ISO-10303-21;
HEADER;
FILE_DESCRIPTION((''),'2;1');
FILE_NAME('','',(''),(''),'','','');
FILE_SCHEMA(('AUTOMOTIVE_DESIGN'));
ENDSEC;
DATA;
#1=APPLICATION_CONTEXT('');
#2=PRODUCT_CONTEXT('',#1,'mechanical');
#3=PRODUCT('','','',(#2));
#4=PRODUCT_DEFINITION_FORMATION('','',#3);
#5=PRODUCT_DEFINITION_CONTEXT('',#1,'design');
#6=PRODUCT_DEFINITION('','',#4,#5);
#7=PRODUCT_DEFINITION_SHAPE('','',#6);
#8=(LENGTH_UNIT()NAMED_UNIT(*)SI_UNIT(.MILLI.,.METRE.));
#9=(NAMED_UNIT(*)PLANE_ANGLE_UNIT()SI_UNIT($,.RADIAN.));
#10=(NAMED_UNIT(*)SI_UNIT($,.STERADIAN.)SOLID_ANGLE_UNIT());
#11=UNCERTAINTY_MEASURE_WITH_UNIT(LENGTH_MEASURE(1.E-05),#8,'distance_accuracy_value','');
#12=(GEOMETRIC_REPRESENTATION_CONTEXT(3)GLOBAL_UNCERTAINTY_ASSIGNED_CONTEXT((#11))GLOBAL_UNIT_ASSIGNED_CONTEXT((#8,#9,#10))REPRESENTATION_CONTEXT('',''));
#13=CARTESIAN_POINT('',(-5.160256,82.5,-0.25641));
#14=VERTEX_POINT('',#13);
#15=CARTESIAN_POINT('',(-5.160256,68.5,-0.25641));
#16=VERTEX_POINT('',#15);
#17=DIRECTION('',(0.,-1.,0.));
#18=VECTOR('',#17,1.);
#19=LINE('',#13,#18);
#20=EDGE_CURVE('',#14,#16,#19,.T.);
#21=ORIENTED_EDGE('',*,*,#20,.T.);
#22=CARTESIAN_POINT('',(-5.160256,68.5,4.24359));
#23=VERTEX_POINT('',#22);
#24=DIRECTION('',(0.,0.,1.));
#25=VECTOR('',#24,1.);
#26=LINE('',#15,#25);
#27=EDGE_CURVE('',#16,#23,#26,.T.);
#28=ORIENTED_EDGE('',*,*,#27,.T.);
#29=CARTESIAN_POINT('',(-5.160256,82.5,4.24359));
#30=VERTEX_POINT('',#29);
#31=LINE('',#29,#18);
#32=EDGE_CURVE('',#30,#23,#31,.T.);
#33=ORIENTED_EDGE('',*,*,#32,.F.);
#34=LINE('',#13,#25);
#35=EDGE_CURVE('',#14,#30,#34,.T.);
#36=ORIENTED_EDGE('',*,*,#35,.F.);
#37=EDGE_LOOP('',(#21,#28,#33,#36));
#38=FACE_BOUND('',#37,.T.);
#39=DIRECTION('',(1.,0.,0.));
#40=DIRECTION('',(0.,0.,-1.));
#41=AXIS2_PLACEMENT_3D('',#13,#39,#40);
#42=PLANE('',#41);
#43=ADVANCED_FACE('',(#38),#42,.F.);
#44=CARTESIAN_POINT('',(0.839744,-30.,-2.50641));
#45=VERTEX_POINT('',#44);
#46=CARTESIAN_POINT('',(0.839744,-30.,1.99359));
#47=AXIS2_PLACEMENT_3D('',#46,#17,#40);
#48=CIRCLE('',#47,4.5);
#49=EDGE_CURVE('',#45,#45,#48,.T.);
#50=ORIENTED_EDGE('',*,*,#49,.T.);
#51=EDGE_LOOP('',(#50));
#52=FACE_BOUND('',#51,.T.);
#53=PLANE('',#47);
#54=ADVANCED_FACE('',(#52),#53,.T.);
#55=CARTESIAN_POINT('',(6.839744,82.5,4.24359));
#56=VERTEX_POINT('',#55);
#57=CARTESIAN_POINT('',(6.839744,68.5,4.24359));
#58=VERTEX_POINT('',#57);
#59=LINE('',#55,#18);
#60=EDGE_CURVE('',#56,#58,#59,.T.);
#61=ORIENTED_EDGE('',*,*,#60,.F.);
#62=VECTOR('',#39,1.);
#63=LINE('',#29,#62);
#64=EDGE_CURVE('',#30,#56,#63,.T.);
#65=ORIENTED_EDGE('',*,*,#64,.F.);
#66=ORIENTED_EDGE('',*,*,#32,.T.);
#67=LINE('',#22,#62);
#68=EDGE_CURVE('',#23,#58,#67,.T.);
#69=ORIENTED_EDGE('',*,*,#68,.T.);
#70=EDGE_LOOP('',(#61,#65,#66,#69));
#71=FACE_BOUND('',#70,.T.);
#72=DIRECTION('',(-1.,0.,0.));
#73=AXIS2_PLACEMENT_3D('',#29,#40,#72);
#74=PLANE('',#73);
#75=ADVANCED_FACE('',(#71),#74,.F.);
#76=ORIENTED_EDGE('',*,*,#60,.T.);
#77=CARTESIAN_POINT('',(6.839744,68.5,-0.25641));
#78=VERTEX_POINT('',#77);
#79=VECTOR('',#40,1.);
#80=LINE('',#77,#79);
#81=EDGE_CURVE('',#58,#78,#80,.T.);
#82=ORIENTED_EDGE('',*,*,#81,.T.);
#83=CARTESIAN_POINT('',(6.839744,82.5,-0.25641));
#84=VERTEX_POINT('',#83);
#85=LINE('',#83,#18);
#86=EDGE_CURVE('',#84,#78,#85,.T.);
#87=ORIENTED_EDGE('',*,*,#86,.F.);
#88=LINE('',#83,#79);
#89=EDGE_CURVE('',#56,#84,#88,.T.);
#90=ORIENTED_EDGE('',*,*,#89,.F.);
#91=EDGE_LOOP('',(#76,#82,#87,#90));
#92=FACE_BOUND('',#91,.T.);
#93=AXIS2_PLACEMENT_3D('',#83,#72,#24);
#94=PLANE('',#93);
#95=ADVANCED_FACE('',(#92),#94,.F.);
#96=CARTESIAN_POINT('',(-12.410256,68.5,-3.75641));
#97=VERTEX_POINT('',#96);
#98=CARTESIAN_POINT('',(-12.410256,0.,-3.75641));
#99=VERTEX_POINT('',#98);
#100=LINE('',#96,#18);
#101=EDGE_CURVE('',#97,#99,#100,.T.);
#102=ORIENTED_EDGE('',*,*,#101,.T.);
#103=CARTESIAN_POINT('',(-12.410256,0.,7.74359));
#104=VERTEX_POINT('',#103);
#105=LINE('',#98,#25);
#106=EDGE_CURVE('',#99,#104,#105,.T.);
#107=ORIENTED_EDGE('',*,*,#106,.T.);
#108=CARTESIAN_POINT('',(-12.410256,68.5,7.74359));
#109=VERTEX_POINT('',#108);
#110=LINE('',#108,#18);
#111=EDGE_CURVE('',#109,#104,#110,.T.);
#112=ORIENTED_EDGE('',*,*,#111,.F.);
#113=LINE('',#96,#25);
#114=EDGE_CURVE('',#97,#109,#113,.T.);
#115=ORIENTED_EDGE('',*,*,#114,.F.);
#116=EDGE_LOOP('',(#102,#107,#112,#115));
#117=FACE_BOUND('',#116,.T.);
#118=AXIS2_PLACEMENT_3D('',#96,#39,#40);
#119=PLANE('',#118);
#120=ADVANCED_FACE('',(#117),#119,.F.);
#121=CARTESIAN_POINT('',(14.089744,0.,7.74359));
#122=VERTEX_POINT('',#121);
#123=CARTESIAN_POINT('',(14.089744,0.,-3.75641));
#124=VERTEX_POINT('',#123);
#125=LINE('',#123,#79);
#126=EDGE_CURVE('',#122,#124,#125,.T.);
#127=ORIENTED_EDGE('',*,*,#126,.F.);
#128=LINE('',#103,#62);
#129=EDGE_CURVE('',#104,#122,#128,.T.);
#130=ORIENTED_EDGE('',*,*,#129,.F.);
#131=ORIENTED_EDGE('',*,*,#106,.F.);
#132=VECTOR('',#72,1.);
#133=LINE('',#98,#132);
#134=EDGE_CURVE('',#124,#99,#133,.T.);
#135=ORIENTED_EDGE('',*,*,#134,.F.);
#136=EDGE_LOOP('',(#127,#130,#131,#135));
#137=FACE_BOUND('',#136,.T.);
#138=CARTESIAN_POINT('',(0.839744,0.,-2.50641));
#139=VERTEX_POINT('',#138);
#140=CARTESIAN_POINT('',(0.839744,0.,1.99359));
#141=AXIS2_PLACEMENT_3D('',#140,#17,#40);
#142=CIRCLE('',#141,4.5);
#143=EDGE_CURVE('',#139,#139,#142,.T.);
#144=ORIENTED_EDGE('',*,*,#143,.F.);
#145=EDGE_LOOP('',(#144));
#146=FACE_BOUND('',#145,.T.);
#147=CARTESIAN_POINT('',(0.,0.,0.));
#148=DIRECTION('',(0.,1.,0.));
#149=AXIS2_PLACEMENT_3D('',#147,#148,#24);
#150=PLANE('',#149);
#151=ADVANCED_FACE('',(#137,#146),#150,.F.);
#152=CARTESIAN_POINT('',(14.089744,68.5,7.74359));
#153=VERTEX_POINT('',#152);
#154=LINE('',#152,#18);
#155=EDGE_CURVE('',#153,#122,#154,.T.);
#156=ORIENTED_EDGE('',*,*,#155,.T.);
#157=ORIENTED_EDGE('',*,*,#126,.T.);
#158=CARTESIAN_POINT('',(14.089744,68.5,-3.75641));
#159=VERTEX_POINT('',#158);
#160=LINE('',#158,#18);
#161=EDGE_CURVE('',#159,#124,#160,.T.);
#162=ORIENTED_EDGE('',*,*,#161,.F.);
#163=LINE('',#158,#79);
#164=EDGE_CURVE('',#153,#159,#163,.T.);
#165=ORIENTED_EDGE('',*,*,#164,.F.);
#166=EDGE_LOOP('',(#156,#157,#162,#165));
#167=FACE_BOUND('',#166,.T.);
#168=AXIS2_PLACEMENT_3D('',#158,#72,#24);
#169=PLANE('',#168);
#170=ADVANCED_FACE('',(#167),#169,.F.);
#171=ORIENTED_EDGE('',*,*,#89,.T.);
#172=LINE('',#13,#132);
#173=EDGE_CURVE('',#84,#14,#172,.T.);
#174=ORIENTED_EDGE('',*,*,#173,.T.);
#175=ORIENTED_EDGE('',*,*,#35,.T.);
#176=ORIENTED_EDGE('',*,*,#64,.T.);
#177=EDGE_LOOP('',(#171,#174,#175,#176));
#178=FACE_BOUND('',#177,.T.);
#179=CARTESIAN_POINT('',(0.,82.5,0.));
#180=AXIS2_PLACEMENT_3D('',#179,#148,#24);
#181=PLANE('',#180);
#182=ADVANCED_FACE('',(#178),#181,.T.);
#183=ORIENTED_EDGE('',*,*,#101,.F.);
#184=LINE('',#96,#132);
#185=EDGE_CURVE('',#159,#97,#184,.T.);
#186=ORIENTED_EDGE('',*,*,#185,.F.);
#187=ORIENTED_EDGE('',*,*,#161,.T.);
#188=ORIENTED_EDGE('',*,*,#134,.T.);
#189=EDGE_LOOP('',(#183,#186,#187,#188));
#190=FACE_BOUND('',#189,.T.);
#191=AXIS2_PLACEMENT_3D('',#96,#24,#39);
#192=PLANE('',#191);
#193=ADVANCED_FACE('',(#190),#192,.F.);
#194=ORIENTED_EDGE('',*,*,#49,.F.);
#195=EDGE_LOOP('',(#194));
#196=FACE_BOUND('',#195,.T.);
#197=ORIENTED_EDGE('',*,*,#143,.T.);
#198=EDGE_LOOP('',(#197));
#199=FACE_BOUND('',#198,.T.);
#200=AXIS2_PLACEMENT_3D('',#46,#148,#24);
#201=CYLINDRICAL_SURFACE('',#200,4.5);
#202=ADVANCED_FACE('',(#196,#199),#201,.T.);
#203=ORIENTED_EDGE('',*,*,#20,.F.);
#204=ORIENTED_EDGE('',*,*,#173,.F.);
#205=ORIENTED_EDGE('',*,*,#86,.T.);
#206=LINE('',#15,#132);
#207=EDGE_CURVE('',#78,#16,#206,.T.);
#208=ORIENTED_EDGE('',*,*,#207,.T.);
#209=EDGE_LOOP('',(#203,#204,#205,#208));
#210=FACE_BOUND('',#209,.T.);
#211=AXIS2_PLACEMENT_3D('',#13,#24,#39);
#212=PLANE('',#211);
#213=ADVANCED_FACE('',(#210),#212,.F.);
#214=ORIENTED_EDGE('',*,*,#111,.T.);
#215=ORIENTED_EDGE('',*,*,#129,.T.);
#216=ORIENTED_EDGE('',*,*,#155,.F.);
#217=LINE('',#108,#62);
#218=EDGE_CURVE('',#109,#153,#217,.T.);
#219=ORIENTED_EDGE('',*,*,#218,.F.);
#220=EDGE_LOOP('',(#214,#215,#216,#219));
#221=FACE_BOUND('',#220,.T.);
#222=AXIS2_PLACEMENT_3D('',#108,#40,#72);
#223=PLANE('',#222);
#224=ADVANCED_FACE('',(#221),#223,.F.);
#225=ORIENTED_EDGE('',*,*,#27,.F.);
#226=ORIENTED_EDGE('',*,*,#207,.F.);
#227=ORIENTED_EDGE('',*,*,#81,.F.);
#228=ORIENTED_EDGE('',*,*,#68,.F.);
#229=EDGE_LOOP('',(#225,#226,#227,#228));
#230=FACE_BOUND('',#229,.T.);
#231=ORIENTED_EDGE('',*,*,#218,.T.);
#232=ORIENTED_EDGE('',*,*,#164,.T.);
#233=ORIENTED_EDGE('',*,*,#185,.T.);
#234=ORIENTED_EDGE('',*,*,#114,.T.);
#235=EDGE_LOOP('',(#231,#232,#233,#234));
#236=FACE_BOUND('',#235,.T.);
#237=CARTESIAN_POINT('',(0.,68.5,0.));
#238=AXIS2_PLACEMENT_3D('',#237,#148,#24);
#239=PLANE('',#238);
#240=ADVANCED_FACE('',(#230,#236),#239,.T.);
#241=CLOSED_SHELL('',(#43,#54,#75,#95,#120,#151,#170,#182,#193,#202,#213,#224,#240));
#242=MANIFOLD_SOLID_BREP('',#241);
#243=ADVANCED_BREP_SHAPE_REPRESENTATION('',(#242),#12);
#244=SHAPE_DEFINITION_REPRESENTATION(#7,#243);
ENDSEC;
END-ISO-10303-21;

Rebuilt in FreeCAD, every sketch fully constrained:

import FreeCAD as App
import Part
import Sketcher
Q = App.Units.Quantity


def add_polygon(sketch, points):
    """Adds a closed chain of lines whose ends are joined by coincident constraints."""
    first, n = sketch.GeometryCount, len(points)
    for a, b in zip(points, points[1:] + points[:1]):
        sketch.addGeometry(Part.LineSegment(App.Vector(*a, 0), App.Vector(*b, 0)), False)
    for i in range(n):
        sketch.addConstraint(Sketcher.Constraint("Coincident", first + i, 2, first + (i + 1) % n, 1))

doc = App.newDocument("Part")
body = doc.addObject("PartDesign::Body", "Body")

sketch1 = body.newObject("Sketcher::SketchObject", "Sketch")
sketch1.AttachmentSupport = (doc.getObject("XZ_Plane"), [""])
sketch1.MapMode = "FlatFace"
add_polygon(sketch1, [(-12, -4), (-12, 8), (14, 8), (14, -4)])
sketch1.addConstraint([
    Sketcher.Constraint("Vertical", 0),
    Sketcher.Constraint("Horizontal", 1),
    Sketcher.Constraint("Vertical", 2),
    Sketcher.Constraint("Horizontal", 3),
    Sketcher.Constraint("DistanceX", 1, 1, 1, 2, Q("26.5 mm")),
    Sketcher.Constraint("DistanceY", 0, 1, 0, 2, Q("11.5 mm")),
    Sketcher.Constraint("DistanceY", -1, 1, 0, 2, Q("7.74359 mm")),
    Sketcher.Constraint("DistanceX", 0, 2, -1, 1, Q("12.410256 mm")),
])
pad1 = body.newObject("PartDesign::Pad", "Pad")
pad1.Profile = sketch1
pad1.Length = 68.5
pad1.Reversed = True

sketch2 = body.newObject("Sketcher::SketchObject", "Sketch001")
sketch2.AttachmentSupport = (doc.getObject("XZ_Plane"), [""])
sketch2.MapMode = "FlatFace"
sketch2.AttachmentOffset = App.Placement(App.Vector(0, 0, -68.5), App.Rotation())
add_polygon(sketch2, [(-5.2, -0.3), (-5.2, 4.2), (6.8, 4.2), (6.8, -0.3)])
sketch2.addConstraint([
    Sketcher.Constraint("Vertical", 0),
    Sketcher.Constraint("Horizontal", 1),
    Sketcher.Constraint("Vertical", 2),
    Sketcher.Constraint("Horizontal", 3),
    Sketcher.Constraint("DistanceX", 1, 1, 1, 2, Q("12 mm")),
    Sketcher.Constraint("DistanceY", 0, 1, 0, 2, Q("4.5 mm")),
    Sketcher.Constraint("DistanceY", -1, 1, 0, 2, Q("4.24359 mm")),
    Sketcher.Constraint("DistanceX", 0, 2, -1, 1, Q("5.160256 mm")),
])
pad2 = body.newObject("PartDesign::Pad", "Pad001")
pad2.Profile = sketch2
pad2.Length = 14
pad2.Reversed = True

sketch3 = body.newObject("Sketcher::SketchObject", "Sketch002")
sketch3.AttachmentSupport = (doc.getObject("XZ_Plane"), [""])
sketch3.MapMode = "FlatFace"
sketch3.addGeometry(Part.Circle(App.Vector(0.8, 2, 0), App.Vector(0, 0, 1), 4.5), False)
sketch3.addConstraint([
    Sketcher.Constraint("Diameter", 0, Q("9 mm")),
    Sketcher.Constraint("DistanceY", -1, 1, 0, 3, Q("1.99359 mm")),
    Sketcher.Constraint("DistanceX", -1, 1, 0, 3, Q("0.839744 mm")),
])
pad3 = body.newObject("PartDesign::Pad", "Pad002")
pad3.Profile = sketch3
pad3.Length = 30

doc.recompute()
